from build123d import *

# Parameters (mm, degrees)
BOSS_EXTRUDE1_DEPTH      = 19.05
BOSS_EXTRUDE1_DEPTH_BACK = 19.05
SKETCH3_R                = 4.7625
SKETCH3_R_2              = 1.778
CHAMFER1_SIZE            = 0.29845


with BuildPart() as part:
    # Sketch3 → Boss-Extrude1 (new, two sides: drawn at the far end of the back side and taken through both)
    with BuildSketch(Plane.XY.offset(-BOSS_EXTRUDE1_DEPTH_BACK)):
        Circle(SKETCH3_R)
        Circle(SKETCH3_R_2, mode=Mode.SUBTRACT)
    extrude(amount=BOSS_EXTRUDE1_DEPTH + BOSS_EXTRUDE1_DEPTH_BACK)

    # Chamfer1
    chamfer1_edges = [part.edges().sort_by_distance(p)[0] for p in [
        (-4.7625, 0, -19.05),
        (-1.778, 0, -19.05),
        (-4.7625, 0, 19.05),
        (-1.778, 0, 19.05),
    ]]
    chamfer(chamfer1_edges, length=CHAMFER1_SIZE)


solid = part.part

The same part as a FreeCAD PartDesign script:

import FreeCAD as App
import Part
import Sketcher
Q = App.Units.Quantity


def edges_at(feature, points):
    """Names of the edges that pass closest to the given points."""
    edges = feature.Shape.Edges
    near = lambda p: min(range(len(edges)), key=lambda i: edges[i].distToShape(Part.Vertex(*p))[0])
    return sorted({f"Edge{near(p) + 1}" for p in points})

doc = App.newDocument("Part")
body = doc.addObject("PartDesign::Body", "Body")

sketch1 = body.newObject("Sketcher::SketchObject", "Sketch")
sketch1.AttachmentSupport = (doc.getObject("XY_Plane"), [""])
sketch1.MapMode = "FlatFace"
sketch1.addGeometry([
    Part.Circle(App.Vector(0, 0, 0), App.Vector(0, 0, 1), 4.8),
    Part.Circle(App.Vector(0, 0, 0), App.Vector(0, 0, 1), 1.8),
], False)
sketch1.addConstraint([
    Sketcher.Constraint("Coincident", 0, 3, -1, 1),
    Sketcher.Constraint("Coincident", 1, 3, -1, 1),
    Sketcher.Constraint("Diameter", 1, Q("0.14 in")),
    Sketcher.Constraint("Diameter", 0, Q("0.375 in")),
])
pad1 = body.newObject("PartDesign::Pad", "Pad")
pad1.Profile = sketch1
pad1.Type = "TwoLengths"
pad1.Length = Q("0.75 in")
pad1.Length2 = Q("0.75 in")
doc.recompute()

chamfer = body.newObject("PartDesign::Chamfer", "Chamfer")
chamfer.Base = (pad1, edges_at(pad1, [
    (-4.763, 0, -19.05),
    (-1.778, 0, -19.05),
    (-4.763, 0, 19.05),
    (-1.778, 0, 19.05),
]))
chamfer.Size = 0.29845

doc.recompute()
